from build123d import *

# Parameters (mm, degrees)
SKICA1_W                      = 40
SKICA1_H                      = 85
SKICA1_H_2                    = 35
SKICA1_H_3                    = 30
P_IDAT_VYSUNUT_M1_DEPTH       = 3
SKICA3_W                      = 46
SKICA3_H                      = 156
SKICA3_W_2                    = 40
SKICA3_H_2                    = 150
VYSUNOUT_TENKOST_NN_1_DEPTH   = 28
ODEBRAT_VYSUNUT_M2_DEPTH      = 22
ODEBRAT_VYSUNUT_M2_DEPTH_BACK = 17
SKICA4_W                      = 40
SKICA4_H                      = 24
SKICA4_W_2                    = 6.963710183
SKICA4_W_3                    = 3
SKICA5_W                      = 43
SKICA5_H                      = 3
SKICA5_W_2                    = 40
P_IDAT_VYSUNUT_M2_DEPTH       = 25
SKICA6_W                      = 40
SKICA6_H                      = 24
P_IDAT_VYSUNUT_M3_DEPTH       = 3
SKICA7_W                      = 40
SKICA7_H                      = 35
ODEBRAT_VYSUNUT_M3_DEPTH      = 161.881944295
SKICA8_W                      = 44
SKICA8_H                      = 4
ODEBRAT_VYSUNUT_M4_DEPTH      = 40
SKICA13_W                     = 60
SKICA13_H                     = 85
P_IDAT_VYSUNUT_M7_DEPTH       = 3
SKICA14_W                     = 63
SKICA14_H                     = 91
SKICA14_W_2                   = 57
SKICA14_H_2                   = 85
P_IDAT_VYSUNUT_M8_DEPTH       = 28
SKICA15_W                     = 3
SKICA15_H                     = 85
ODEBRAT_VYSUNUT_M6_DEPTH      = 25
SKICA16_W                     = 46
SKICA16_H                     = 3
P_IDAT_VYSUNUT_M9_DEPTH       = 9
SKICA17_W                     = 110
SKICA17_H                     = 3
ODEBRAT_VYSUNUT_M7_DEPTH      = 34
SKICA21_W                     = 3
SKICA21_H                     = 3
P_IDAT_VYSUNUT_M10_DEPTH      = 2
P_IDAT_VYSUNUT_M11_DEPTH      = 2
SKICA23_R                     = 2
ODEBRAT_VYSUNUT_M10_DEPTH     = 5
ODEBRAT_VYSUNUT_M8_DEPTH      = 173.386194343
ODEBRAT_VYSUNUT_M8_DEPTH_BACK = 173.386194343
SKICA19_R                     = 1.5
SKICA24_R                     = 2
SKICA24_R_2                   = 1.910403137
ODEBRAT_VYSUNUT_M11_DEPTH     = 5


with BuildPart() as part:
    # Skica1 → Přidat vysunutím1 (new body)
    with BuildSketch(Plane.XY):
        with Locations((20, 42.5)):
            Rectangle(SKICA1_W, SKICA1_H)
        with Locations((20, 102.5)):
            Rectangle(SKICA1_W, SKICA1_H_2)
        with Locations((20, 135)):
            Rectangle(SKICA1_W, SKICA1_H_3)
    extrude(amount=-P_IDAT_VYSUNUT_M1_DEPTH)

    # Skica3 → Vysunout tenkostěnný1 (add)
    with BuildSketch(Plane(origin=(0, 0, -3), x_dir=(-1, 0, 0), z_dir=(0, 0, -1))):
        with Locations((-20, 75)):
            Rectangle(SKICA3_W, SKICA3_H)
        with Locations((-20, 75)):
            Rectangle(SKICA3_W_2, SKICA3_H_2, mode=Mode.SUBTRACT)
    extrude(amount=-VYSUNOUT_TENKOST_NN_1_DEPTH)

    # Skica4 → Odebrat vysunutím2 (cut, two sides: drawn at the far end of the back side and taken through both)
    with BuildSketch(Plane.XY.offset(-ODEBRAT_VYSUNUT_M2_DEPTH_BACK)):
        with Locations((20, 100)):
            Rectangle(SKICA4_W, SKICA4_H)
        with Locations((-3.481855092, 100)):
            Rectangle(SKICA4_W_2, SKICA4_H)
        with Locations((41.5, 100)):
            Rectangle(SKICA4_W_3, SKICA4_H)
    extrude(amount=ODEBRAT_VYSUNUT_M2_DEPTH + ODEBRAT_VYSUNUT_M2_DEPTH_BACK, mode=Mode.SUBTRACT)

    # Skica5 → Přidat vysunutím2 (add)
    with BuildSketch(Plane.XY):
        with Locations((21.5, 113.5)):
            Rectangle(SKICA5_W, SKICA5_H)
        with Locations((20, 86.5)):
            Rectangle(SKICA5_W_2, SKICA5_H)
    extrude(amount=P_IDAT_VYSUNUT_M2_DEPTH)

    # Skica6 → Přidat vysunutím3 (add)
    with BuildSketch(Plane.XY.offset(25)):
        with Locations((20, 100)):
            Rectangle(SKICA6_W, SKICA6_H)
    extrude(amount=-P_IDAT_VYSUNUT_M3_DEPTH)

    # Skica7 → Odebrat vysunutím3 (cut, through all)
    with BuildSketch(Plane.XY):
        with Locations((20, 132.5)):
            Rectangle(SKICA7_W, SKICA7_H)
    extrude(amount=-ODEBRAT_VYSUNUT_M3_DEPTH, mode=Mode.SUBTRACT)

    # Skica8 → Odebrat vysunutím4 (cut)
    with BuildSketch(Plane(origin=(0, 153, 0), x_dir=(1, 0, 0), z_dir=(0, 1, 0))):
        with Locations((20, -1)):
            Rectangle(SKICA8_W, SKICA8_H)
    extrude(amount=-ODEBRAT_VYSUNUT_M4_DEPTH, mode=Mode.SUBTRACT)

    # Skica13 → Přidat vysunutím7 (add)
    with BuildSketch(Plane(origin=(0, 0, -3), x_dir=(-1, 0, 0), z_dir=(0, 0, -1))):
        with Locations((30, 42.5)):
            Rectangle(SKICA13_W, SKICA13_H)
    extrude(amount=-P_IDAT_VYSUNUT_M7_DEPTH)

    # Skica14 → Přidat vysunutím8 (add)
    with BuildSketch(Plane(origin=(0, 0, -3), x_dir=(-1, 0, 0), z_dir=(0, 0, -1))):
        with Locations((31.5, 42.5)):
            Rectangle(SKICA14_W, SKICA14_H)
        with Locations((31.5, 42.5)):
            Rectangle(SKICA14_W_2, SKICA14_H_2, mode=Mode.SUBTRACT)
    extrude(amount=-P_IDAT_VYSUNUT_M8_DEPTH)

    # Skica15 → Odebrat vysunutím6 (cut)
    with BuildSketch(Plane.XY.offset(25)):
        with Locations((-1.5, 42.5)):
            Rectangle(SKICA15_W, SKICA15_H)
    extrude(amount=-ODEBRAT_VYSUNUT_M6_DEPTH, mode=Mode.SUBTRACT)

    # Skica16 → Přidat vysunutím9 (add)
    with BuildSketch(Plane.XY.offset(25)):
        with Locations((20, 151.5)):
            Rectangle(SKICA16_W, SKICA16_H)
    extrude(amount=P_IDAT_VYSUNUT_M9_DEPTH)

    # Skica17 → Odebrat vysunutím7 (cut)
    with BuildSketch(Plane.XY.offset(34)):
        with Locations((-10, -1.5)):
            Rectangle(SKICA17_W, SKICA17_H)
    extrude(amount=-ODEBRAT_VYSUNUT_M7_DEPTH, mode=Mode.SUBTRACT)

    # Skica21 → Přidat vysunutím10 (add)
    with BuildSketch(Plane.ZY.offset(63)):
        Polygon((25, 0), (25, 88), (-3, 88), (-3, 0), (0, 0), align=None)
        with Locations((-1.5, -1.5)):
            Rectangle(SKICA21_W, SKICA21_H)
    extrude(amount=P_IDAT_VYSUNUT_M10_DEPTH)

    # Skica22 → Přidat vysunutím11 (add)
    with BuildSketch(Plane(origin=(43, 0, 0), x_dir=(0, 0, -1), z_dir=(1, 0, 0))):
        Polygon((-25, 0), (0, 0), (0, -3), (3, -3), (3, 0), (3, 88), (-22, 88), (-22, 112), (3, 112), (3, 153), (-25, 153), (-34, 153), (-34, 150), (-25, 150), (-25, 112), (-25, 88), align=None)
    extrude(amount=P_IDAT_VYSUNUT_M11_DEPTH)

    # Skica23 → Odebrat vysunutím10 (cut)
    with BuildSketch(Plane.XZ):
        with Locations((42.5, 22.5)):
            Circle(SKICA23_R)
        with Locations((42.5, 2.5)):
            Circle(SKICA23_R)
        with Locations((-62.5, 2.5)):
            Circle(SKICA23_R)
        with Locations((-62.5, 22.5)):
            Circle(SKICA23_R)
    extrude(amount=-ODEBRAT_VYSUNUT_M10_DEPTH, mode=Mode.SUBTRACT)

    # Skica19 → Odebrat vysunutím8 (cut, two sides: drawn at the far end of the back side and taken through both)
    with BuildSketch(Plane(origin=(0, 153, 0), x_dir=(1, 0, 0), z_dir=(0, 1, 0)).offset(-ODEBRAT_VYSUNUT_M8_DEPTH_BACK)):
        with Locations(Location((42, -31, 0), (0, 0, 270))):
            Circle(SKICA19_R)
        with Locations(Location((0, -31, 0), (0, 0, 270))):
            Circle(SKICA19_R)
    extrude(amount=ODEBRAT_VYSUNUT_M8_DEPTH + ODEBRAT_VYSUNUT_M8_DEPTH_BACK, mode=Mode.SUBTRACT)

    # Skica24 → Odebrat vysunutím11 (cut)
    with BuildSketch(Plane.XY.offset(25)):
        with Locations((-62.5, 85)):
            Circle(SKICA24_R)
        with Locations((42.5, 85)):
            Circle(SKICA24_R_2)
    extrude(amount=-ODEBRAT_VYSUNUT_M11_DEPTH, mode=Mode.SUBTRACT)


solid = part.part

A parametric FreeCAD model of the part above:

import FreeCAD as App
import Part
import Sketcher


def add_polygon(sketch, points):
    """Adds a closed chain of lines whose ends are joined by coincident constraints."""
    first, n = sketch.GeometryCount, len(points)
    for a, b in zip(points, points[1:] + points[:1]):
        sketch.addGeometry(Part.LineSegment(App.Vector(*a, 0), App.Vector(*b, 0)), False)
    for i in range(n):
        sketch.addConstraint(Sketcher.Constraint("Coincident", first + i, 2, first + (i + 1) % n, 1))

doc = App.newDocument("Part")
params = doc.addObject("Spreadsheet::Sheet", "Params")
for row, (alias, value) in enumerate([
    ("sketch1_width", "40 mm"),
    ("sketch1_height", "150 mm"),
    ("pad1_length", "3 mm"),
    ("sketch2_width", "46 mm"),
    ("sketch2_width2", "40 mm"),
    ("sketch2_height", "156 mm"),
    ("sketch2_height2", "150 mm"),
    ("pad2_length", "28 mm"),
    ("sketch3_height", "24 mm"),
    ("pocket1_length", "22 mm"),
    ("pocket1_length2", "17 mm"),
    ("sketch4_width", "43 mm"),
    ("sketch4_width2", "40 mm"),
    ("sketch4_height", "3 mm"),
    ("pad3_length", "25 mm"),
    ("sketch5_width", "40 mm"),
    ("sketch5_height", "24 mm"),
    ("pad4_length", "3 mm"),
    ("sketch6_width", "40 mm"),
    ("sketch6_height", "35 mm"),
    ("sketch7_width", "44 mm"),
    ("sketch7_height", "4 mm"),
    ("pocket3_length", "40 mm"),
    ("sketch8_width", "60 mm"),
    ("sketch8_height", "85 mm"),
    ("pad5_length", "3 mm"),
    ("sketch9_width", "63 mm"),
    ("sketch9_width2", "57 mm"),
    ("sketch9_height", "91 mm"),
    ("sketch9_height2", "85 mm"),
    ("pad6_length", "28 mm"),
    ("sketch10_width", "3 mm"),
    ("sketch10_height", "85 mm"),
    ("pocket4_length", "25 mm"),
    ("sketch11_width", "46 mm"),
    ("sketch11_height", "3 mm"),
    ("pad7_length", "9 mm"),
    ("sketch12_width", "110 mm"),
    ("sketch12_height", "3 mm"),
    ("pocket5_length", "34 mm"),
    ("sketch13_width", "88 mm"),
    ("sketch13_width2", "91 mm"),
    ("sketch13_height", "28 mm"),
    ("pad8_length", "2 mm"),
    ("sketch14_width", "3 mm"),
    ("sketch14_width2", "91 mm"),
    ("sketch14_width3", "24 mm"),
    ("sketch14_width4", "41 mm"),
    ("sketch14_height", "25 mm"),
    ("pad9_length", "2 mm"),
    ("sketch15_diameter", "4 mm"),
    ("pocket6_length", "5 mm"),
    ("sketch16_diameter", "3 mm"),
    ("sketch17_diameter", "4 mm"),
    ("pocket8_length", "5 mm"),
], start=1):
    params.set(f"A{row}", alias)
    params.set(f"B{row}", "=" + value)
    params.setAlias(f"B{row}", alias)

body = doc.addObject("PartDesign::Body", "Body")

sketch1 = body.newObject("Sketcher::SketchObject", "Sketch")
sketch1.AttachmentSupport = (doc.getObject("XY_Plane"), [""])
sketch1.MapMode = "FlatFace"
add_polygon(sketch1, [(0, 0), (40, 0), (40, 150), (0, 150)])
sketch1.addConstraint([
    Sketcher.Constraint("Horizontal", 0),
    Sketcher.Constraint("Vertical", 1),
    Sketcher.Constraint("Horizontal", 2),
    Sketcher.Constraint("Vertical", 3),
    Sketcher.Constraint("Coincident", 3, 2, -1, 1),
    Sketcher.Constraint("DistanceX", 0, 1, 0, 2, 40.0),
    Sketcher.Constraint("DistanceY", 1, 1, 1, 2, 150.0),
])
sketch1.setExpression("Constraints[9]", "Params.sketch1_width")
sketch1.setExpression("Constraints[10]", "Params.sketch1_height")
pad1 = body.newObject("PartDesign::Pad", "Pad")
pad1.Profile = sketch1
pad1.setExpression("Length", "Params.pad1_length")
pad1.Reversed = True

sketch2 = body.newObject("Sketcher::SketchObject", "Sketch001")
sketch2.AttachmentSupport = (doc.getObject("XY_Plane"), [""])
sketch2.MapMode = "FlatFace"
sketch2.AttachmentOffset = App.Placement(App.Vector(0, 0, -3), App.Rotation())
add_polygon(sketch2, [(43, 153), (43, -3), (-3, -3), (-3, 153)])
add_polygon(sketch2, [(0, 0), (40, 0), (40, 150), (0, 150)])
sketch2.addConstraint([
    Sketcher.Constraint("Vertical", 0),
    Sketcher.Constraint("Horizontal", 1),
    Sketcher.Constraint("Vertical", 2),
    Sketcher.Constraint("Horizontal", 3),
    Sketcher.Constraint("Horizontal", 4),
    Sketcher.Constraint("Vertical", 5),
    Sketcher.Constraint("Horizontal", 6),
    Sketcher.Constraint("Vertical", 7),
    Sketcher.Constraint("Coincident", 7, 2, -1, 1),
    Sketcher.Constraint("DistanceX", 1, 2, 1, 1, 46.0),
    Sketcher.Constraint("DistanceX", 4, 1, 4, 2, 40.0),
    Sketcher.Constraint("DistanceY", 0, 2, 0, 1, 156.0),
    Sketcher.Constraint("DistanceY", 5, 1, 5, 2, 150.0),
    Sketcher.Constraint("DistanceX", -1, 1, 0, 2, 43.0),
    Sketcher.Constraint("DistanceY", 0, 2, -1, 1, 3.0),
])
sketch2.setExpression("Constraints[17]", "Params.sketch2_width")
sketch2.setExpression("Constraints[18]", "Params.sketch2_width2")
sketch2.setExpression("Constraints[19]", "Params.sketch2_height")
sketch2.setExpression("Constraints[20]", "Params.sketch2_height2")
pad2 = body.newObject("PartDesign::Pad", "Pad001")
pad2.Profile = sketch2
pad2.setExpression("Length", "Params.pad2_length")

sketch3 = body.newObject("Sketcher::SketchObject", "Sketch002")
sketch3.AttachmentSupport = (doc.getObject("XY_Plane"), [""])
sketch3.MapMode = "FlatFace"
add_polygon(sketch3, [(-6.96371, 112), (-6.96371, 88), (43, 88), (43, 112)])
sketch3.addConstraint([
    Sketcher.Constraint("Vertical", 0),
    Sketcher.Constraint("Horizontal", 1),
    Sketcher.Constraint("Vertical", 2),
    Sketcher.Constraint("Horizontal", 3),
    Sketcher.Constraint("DistanceY", 0, 2, 0, 1, 24.0),
    Sketcher.Constraint("DistanceY", -1, 1, 0, 2, 88.0),
    Sketcher.Constraint("DistanceX", -1, 1, 1, 2, 43.0),
    Sketcher.Constraint("DistanceX", 1, 1, 1, 2, 49.96371),
])
sketch3.setExpression("Constraints[8]", "Params.sketch3_height")
pocket1 = body.newObject("PartDesign::Pocket", "Pocket")
pocket1.Profile = sketch3
pocket1.Type = "TwoLengths"
pocket1.setExpression("Length", "Params.pocket1_length")
pocket1.setExpression("Length2", "Params.pocket1_length2")
pocket1.Reversed = True

sketch4 = body.newObject("Sketcher::SketchObject", "Sketch003")
sketch4.AttachmentSupport = (doc.getObject("XY_Plane"), [""])
sketch4.MapMode = "FlatFace"
add_polygon(sketch4, [(0, 115), (0, 112), (43, 112), (43, 115)])
add_polygon(sketch4, [(0, 88), (0, 85), (40, 85), (40, 88)])
sketch4.addConstraint([
    Sketcher.Constraint("Vertical", 0),
    Sketcher.Constraint("Horizontal", 1),
    Sketcher.Constraint("Vertical", 2),
    Sketcher.Constraint("Horizontal", 3),
    Sketcher.Constraint("Vertical", 4),
    Sketcher.Constraint("Horizontal", 5),
    Sketcher.Constraint("Vertical", 6),
    Sketcher.Constraint("Horizontal", 7),
    Sketcher.Constraint("PointOnObject", 0, 2, -2),
    Sketcher.Constraint("PointOnObject", 4, 2, -2),
    Sketcher.Constraint("Equal", 2, 4),
    Sketcher.Constraint("DistanceX", 1, 1, 1, 2, 43.0),
    Sketcher.Constraint("DistanceX", 5, 1, 5, 2, 40.0),
    Sketcher.Constraint("DistanceY", 0, 2, 0, 1, 3.0),
    Sketcher.Constraint("DistanceY", -1, 1, 0, 2, 112.0),
    Sketcher.Constraint("DistanceY", -1, 1, 4, 2, 85.0),
])
sketch4.setExpression("Constraints[19]", "Params.sketch4_width")
sketch4.setExpression("Constraints[20]", "Params.sketch4_width2")
sketch4.setExpression("Constraints[21]", "Params.sketch4_height")
pad3 = body.newObject("PartDesign::Pad", "Pad002")
pad3.Profile = sketch4
pad3.setExpression("Length", "Params.pad3_length")

sketch5 = body.newObject("Sketcher::SketchObject", "Sketch004")
sketch5.AttachmentSupport = (doc.getObject("XY_Plane"), [""])
sketch5.MapMode = "FlatFace"
sketch5.AttachmentOffset = App.Placement(App.Vector(0, 0, 25), App.Rotation())
add_polygon(sketch5, [(0, 112), (0, 88), (40, 88), (40, 112)])
sketch5.addConstraint([
    Sketcher.Constraint("Vertical", 0),
    Sketcher.Constraint("Horizontal", 1),
    Sketcher.Constraint("Vertical", 2),
    Sketcher.Constraint("Horizontal", 3),
    Sketcher.Constraint("PointOnObject", 0, 2, -2),
    Sketcher.Constraint("DistanceX", 1, 1, 1, 2, 40.0),
    Sketcher.Constraint("DistanceY", 0, 2, 0, 1, 24.0),
    Sketcher.Constraint("DistanceY", -1, 1, 0, 2, 88.0),
])
sketch5.setExpression("Constraints[9]", "Params.sketch5_width")
sketch5.setExpression("Constraints[10]", "Params.sketch5_height")
pad4 = body.newObject("PartDesign::Pad", "Pad003")
pad4.Profile = sketch5
pad4.setExpression("Length", "Params.pad4_length")
pad4.Reversed = True

sketch6 = body.newObject("Sketcher::SketchObject", "Sketch005")
sketch6.AttachmentSupport = (doc.getObject("XY_Plane"), [""])
sketch6.MapMode = "FlatFace"
add_polygon(sketch6, [(0, 150), (0, 115), (40, 115), (40, 150)])
sketch6.addConstraint([
    Sketcher.Constraint("Vertical", 0),
    Sketcher.Constraint("Horizontal", 1),
    Sketcher.Constraint("Vertical", 2),
    Sketcher.Constraint("Horizontal", 3),
    Sketcher.Constraint("PointOnObject", 0, 2, -2),
    Sketcher.Constraint("DistanceX", 1, 1, 1, 2, 40.0),
    Sketcher.Constraint("DistanceY", 0, 2, 0, 1, 35.0),
    Sketcher.Constraint("DistanceY", -1, 1, 0, 2, 115.0),
])
sketch6.setExpression("Constraints[9]", "Params.sketch6_width")
sketch6.setExpression("Constraints[10]", "Params.sketch6_height")
pocket2 = body.newObject("PartDesign::Pocket", "Pocket001")
pocket2.Profile = sketch6
pocket2.Type = "ThroughAll"

sketch7 = body.newObject("Sketcher::SketchObject", "Sketch006")
sketch7.AttachmentSupport = (doc.getObject("XZ_Plane"), [""])
sketch7.MapMode = "FlatFace"
sketch7.AttachmentOffset = App.Placement(App.Vector(0, 0, -153), App.Rotation())
add_polygon(sketch7, [(-2, -1), (-2, 3), (42, 3), (42, -1)])
sketch7.addConstraint([
    Sketcher.Constraint("Vertical", 0),
    Sketcher.Constraint("Horizontal", 1),
    Sketcher.Constraint("Vertical", 2),
    Sketcher.Constraint("Horizontal", 3),
    Sketcher.Constraint("DistanceX", 1, 1, 1, 2, 44.0),
    Sketcher.Constraint("DistanceY", 0, 1, 0, 2, 4.0),
    Sketcher.Constraint("DistanceX", 0, 2, -1, 1, 2.0),
    Sketcher.Constraint("DistanceY", -1, 1, 0, 2, 3.0),
])
sketch7.setExpression("Constraints[8]", "Params.sketch7_width")
sketch7.setExpression("Constraints[9]", "Params.sketch7_height")
pocket3 = body.newObject("PartDesign::Pocket", "Pocket002")
pocket3.Profile = sketch7
pocket3.setExpression("Length", "Params.pocket3_length")
pocket3.Reversed = True

sketch8 = body.newObject("Sketcher::SketchObject", "Sketch007")
sketch8.AttachmentSupport = (doc.getObject("XY_Plane"), [""])
sketch8.MapMode = "FlatFace"
sketch8.AttachmentOffset = App.Placement(App.Vector(0, 0, -3), App.Rotation())
add_polygon(sketch8, [(0, 85), (0, 0), (-60, 0), (-60, 85)])
sketch8.addConstraint([
    Sketcher.Constraint("Vertical", 0),
    Sketcher.Constraint("Horizontal", 1),
    Sketcher.Constraint("Vertical", 2),
    Sketcher.Constraint("Horizontal", 3),
    Sketcher.Constraint("Coincident", 0, 2, -1, 1),
    Sketcher.Constraint("DistanceX", 1, 2, 1, 1, 60.0),
    Sketcher.Constraint("DistanceY", 0, 2, 0, 1, 85.0),
])
sketch8.setExpression("Constraints[9]", "Params.sketch8_width")
sketch8.setExpression("Constraints[10]", "Params.sketch8_height")
pad5 = body.newObject("PartDesign::Pad", "Pad004")
pad5.Profile = sketch8
pad5.setExpression("Length", "Params.pad5_length")

sketch9 = body.newObject("Sketcher::SketchObject", "Sketch008")
sketch9.AttachmentSupport = (doc.getObject("XY_Plane"), [""])
sketch9.MapMode = "FlatFace"
sketch9.AttachmentOffset = App.Placement(App.Vector(0, 0, -3), App.Rotation())
add_polygon(sketch9, [(0, 88), (0, -3), (-63, -3), (-63, 88)])
add_polygon(sketch9, [(-60, 0), (-3, 0), (-3, 85), (-60, 85)])
sketch9.addConstraint([
    Sketcher.Constraint("Vertical", 0),
    Sketcher.Constraint("Horizontal", 1),
    Sketcher.Constraint("Vertical", 2),
    Sketcher.Constraint("Horizontal", 3),
    Sketcher.Constraint("Horizontal", 4),
    Sketcher.Constraint("Vertical", 5),
    Sketcher.Constraint("Horizontal", 6),
    Sketcher.Constraint("Vertical", 7),
    Sketcher.Constraint("PointOnObject", 0, 2, -2),
    Sketcher.Constraint("PointOnObject", 4, 2, -1),
    Sketcher.Constraint("DistanceX", 1, 2, 1, 1, 63.0),
    Sketcher.Constraint("DistanceX", 4, 1, 4, 2, 57.0),
    Sketcher.Constraint("DistanceY", 0, 2, 0, 1, 91.0),
    Sketcher.Constraint("DistanceY", 5, 1, 5, 2, 85.0),
    Sketcher.Constraint("DistanceY", 0, 2, -1, 1, 3.0),
    Sketcher.Constraint("DistanceX", 4, 2, -1, 1, 3.0),
])
sketch9.setExpression("Constraints[18]", "Params.sketch9_width")
sketch9.setExpression("Constraints[19]", "Params.sketch9_width2")
sketch9.setExpression("Constraints[20]", "Params.sketch9_height")
sketch9.setExpression("Constraints[21]", "Params.sketch9_height2")
pad6 = body.newObject("PartDesign::Pad", "Pad005")
pad6.Profile = sketch9
pad6.setExpression("Length", "Params.pad6_length")

sketch10 = body.newObject("Sketcher::SketchObject", "Sketch009")
sketch10.AttachmentSupport = (doc.getObject("XY_Plane"), [""])
sketch10.MapMode = "FlatFace"
sketch10.AttachmentOffset = App.Placement(App.Vector(0, 0, 25), App.Rotation())
add_polygon(sketch10, [(-3, 85), (-3, 0), (0, 0), (0, 85)])
sketch10.addConstraint([
    Sketcher.Constraint("Vertical", 0),
    Sketcher.Constraint("Horizontal", 1),
    Sketcher.Constraint("Vertical", 2),
    Sketcher.Constraint("Horizontal", 3),
    Sketcher.Constraint("Coincident", 1, 2, -1, 1),
    Sketcher.Constraint("DistanceX", 1, 1, 1, 2, 3.0),
    Sketcher.Constraint("DistanceY", 0, 2, 0, 1, 85.0),
])
sketch10.setExpression("Constraints[9]", "Params.sketch10_width")
sketch10.setExpression("Constraints[10]", "Params.sketch10_height")
pocket4 = body.newObject("PartDesign::Pocket", "Pocket003")
pocket4.Profile = sketch10
pocket4.setExpression("Length", "Params.pocket4_length")

sketch11 = body.newObject("Sketcher::SketchObject", "Sketch010")
sketch11.AttachmentSupport = (doc.getObject("XY_Plane"), [""])
sketch11.MapMode = "FlatFace"
sketch11.AttachmentOffset = App.Placement(App.Vector(0, 0, 25), App.Rotation())
add_polygon(sketch11, [(-3, 153), (-3, 150), (43, 150), (43, 153)])
sketch11.addConstraint([
    Sketcher.Constraint("Vertical", 0),
    Sketcher.Constraint("Horizontal", 1),
    Sketcher.Constraint("Vertical", 2),
    Sketcher.Constraint("Horizontal", 3),
    Sketcher.Constraint("DistanceX", 1, 1, 1, 2, 46.0),
    Sketcher.Constraint("DistanceY", 0, 2, 0, 1, 3.0),
    Sketcher.Constraint("DistanceX", 0, 2, -1, 1, 3.0),
    Sketcher.Constraint("DistanceY", -1, 1, 0, 2, 150.0),
])
sketch11.setExpression("Constraints[8]", "Params.sketch11_width")
sketch11.setExpression("Constraints[9]", "Params.sketch11_height")
pad7 = body.newObject("PartDesign::Pad", "Pad006")
pad7.Profile = sketch11
pad7.setExpression("Length", "Params.pad7_length")

sketch12 = body.newObject("Sketcher::SketchObject", "Sketch011")
sketch12.AttachmentSupport = (doc.getObject("XY_Plane"), [""])
sketch12.MapMode = "FlatFace"
sketch12.AttachmentOffset = App.Placement(App.Vector(0, 0, 34), App.Rotation())
add_polygon(sketch12, [(-65, 0), (-65, -3), (45, -3), (45, 0)])
sketch12.addConstraint([
    Sketcher.Constraint("Vertical", 0),
    Sketcher.Constraint("Horizontal", 1),
    Sketcher.Constraint("Vertical", 2),
    Sketcher.Constraint("Horizontal", 3),
    Sketcher.Constraint("PointOnObject", 2, 2, -1),
    Sketcher.Constraint("DistanceX", 1, 1, 1, 2, 110.0),
    Sketcher.Constraint("DistanceY", 0, 2, 0, 1, 3.0),
    Sketcher.Constraint("DistanceX", 0, 2, -1, 1, 65.0),
])
sketch12.setExpression("Constraints[9]", "Params.sketch12_width")
sketch12.setExpression("Constraints[10]", "Params.sketch12_height")
pocket5 = body.newObject("PartDesign::Pocket", "Pocket004")
pocket5.Profile = sketch12
pocket5.setExpression("Length", "Params.pocket5_length")

sketch13 = body.newObject("Sketcher::SketchObject", "Sketch012")
sketch13.AttachmentSupport = (doc.getObject("YZ_Plane"), [""])
sketch13.MapMode = "FlatFace"
sketch13.AttachmentOffset = App.Placement(App.Vector(0, 0, -63), App.Rotation())
add_polygon(sketch13, [(0, 25), (88, 25), (88, -3), (-3, -3), (-3, 0), (0, 0)])
sketch13.addConstraint([
    Sketcher.Constraint("Horizontal", 0),
    Sketcher.Constraint("Vertical", 1),
    Sketcher.Constraint("Horizontal", 2),
    Sketcher.Constraint("Vertical", 3),
    Sketcher.Constraint("Horizontal", 4),
    Sketcher.Constraint("Vertical", 5),
    Sketcher.Constraint("Coincident", 4, 2, -1, 1),
    Sketcher.Constraint("Equal", 4, 3),
    Sketcher.Constraint("DistanceX", 0, 1, 0, 2, 88.0),
    Sketcher.Constraint("DistanceX", 2, 2, 2, 1, 91.0),
    Sketcher.Constraint("DistanceY", 1, 2, 1, 1, 28.0),
])
sketch13.setExpression("Constraints[14]", "Params.sketch13_width")
sketch13.setExpression("Constraints[15]", "Params.sketch13_width2")
sketch13.setExpression("Constraints[16]", "Params.sketch13_height")
pad8 = body.newObject("PartDesign::Pad", "Pad007")
pad8.Profile = sketch13
pad8.setExpression("Length", "Params.pad8_length")
pad8.Reversed = True

sketch14 = body.newObject("Sketcher::SketchObject", "Sketch013")
sketch14.AttachmentSupport = (doc.getObject("YZ_Plane"), [""])
sketch14.MapMode = "FlatFace"
sketch14.AttachmentOffset = App.Placement(App.Vector(0, 0, 43), App.Rotation())
add_polygon(sketch14, [(0, 25), (0, 0), (-3, 0), (-3, -3), (88, -3), (88, 22), (112, 22), (112, -3), (153, -3), (153, 34), (150, 34), (150, 25)])
sketch14.addConstraint([
    Sketcher.Constraint("Vertical", 0),
    Sketcher.Constraint("Horizontal", 1),
    Sketcher.Constraint("Vertical", 2),
    Sketcher.Constraint("Horizontal", 3),
    Sketcher.Constraint("Vertical", 4),
    Sketcher.Constraint("Horizontal", 5),
    Sketcher.Constraint("Vertical", 6),
    Sketcher.Constraint("Horizontal", 7),
    Sketcher.Constraint("Vertical", 8),
    Sketcher.Constraint("Horizontal", 9),
    Sketcher.Constraint("Vertical", 10),
    Sketcher.Constraint("Horizontal", 11),
    Sketcher.Constraint("Coincident", 0, 2, -1, 1),
    Sketcher.Constraint("Horizontal", 3, 2, 6, 2),
    Sketcher.Constraint("Equal", 1, 9),
    Sketcher.Constraint("Equal", 9, 2),
    Sketcher.Constraint("Equal", 0, 4),
    Sketcher.Constraint("DistanceX", 1, 2, 1, 1, 3.0),
    Sketcher.Constraint("DistanceX", 3, 1, 3, 2, 91.0),
    Sketcher.Constraint("DistanceX", 5, 1, 5, 2, 24.0),
    Sketcher.Constraint("DistanceX", 7, 1, 7, 2, 41.0),
    Sketcher.Constraint("DistanceY", 0, 2, 0, 1, 25.0),
    Sketcher.Constraint("DistanceY", 8, 1, 8, 2, 37.0),
])
sketch14.setExpression("Constraints[29]", "Params.sketch14_width")
sketch14.setExpression("Constraints[30]", "Params.sketch14_width2")
sketch14.setExpression("Constraints[31]", "Params.sketch14_width3")
sketch14.setExpression("Constraints[32]", "Params.sketch14_width4")
sketch14.setExpression("Constraints[33]", "Params.sketch14_height")
pad9 = body.newObject("PartDesign::Pad", "Pad008")
pad9.Profile = sketch14
pad9.setExpression("Length", "Params.pad9_length")

sketch15 = body.newObject("Sketcher::SketchObject", "Sketch014")
sketch15.AttachmentSupport = (doc.getObject("XZ_Plane"), [""])
sketch15.MapMode = "FlatFace"
sketch15.addGeometry([
    Part.Circle(App.Vector(42.5, 22.5, 0), App.Vector(0, 0, 1), 2),
    Part.Circle(App.Vector(42.5, 2.5, 0), App.Vector(0, 0, 1), 2),
    Part.Circle(App.Vector(-62.5, 2.5, 0), App.Vector(0, 0, 1), 2),
    Part.Circle(App.Vector(-62.5, 22.5, 0), App.Vector(0, 0, 1), 2),
], False)
sketch15.addConstraint([
    Sketcher.Constraint("Equal", 0, 1),
    Sketcher.Constraint("Equal", 1, 2),
    Sketcher.Constraint("Equal", 2, 3),
    Sketcher.Constraint("Horizontal", 1, 3, 2, 3),
    Sketcher.Constraint("Horizontal", 0, 3, 3, 3),
    Sketcher.Constraint("Vertical", 0, 3, 1, 3),
    Sketcher.Constraint("Vertical", 2, 3, 3, 3),
    Sketcher.Constraint("Diameter", 0, 4.0),
    Sketcher.Constraint("DistanceY", 1, 3, 0, 3, 20.0),
    Sketcher.Constraint("DistanceX", 2, 3, 1, 3, 105.0),
    Sketcher.Constraint("DistanceX", -1, 1, 0, 3, 42.5),
    Sketcher.Constraint("DistanceY", -1, 1, 0, 3, 22.5),
])
sketch15.setExpression("Constraints[7]", "Params.sketch15_diameter")
pocket6 = body.newObject("PartDesign::Pocket", "Pocket005")
pocket6.Profile = sketch15
pocket6.setExpression("Length", "Params.pocket6_length")

sketch16 = body.newObject("Sketcher::SketchObject", "Sketch015")
sketch16.AttachmentSupport = (doc.getObject("XZ_Plane"), [""])
sketch16.MapMode = "FlatFace"
sketch16.AttachmentOffset = App.Placement(App.Vector(0, 0, -153), App.Rotation())
sketch16.addGeometry([
    Part.Circle(App.Vector(42, 31, 0), App.Vector(0, 0, 1), 1.5),
    Part.Circle(App.Vector(0, 31, 0), App.Vector(0, 0, 1), 1.5),
], False)
sketch16.addConstraint([
    Sketcher.Constraint("Equal", 0, 1),
    Sketcher.Constraint("PointOnObject", 1, 3, -2),
    Sketcher.Constraint("Horizontal", 0, 3, 1, 3),
    Sketcher.Constraint("Diameter", 0, 3.0),
    Sketcher.Constraint("DistanceX", -1, 1, 0, 3, 42.0),
    Sketcher.Constraint("DistanceY", -1, 1, 0, 3, 31.0),
])
sketch16.setExpression("Constraints[3]", "Params.sketch16_diameter")
pocket7 = body.newObject("PartDesign::Pocket", "Pocket006")
pocket7.Profile = sketch16
pocket7.Type = "ThroughAll"
pocket7.Midplane = True

sketch17 = body.newObject("Sketcher::SketchObject", "Sketch016")
sketch17.AttachmentSupport = (doc.getObject("XY_Plane"), [""])
sketch17.MapMode = "FlatFace"
sketch17.AttachmentOffset = App.Placement(App.Vector(0, 0, 25), App.Rotation())
sketch17.addGeometry([
    Part.Circle(App.Vector(-62.5, 85, 0), App.Vector(0, 0, 1), 2),
    Part.Circle(App.Vector(42.5, 85, 0), App.Vector(0, 0, 1), 1.910403),
], False)
sketch17.addConstraint([
    Sketcher.Constraint("Horizontal", 0, 3, 1, 3),
    Sketcher.Constraint("Diameter", 0, 4.0),
    Sketcher.Constraint("DistanceY", -1, 1, 0, 3, 85.0),
    Sketcher.Constraint("DistanceX", 0, 3, 1, 3, 105.0),
    Sketcher.Constraint("DistanceX", 0, 3, -1, 1, 62.5),
    Sketcher.Constraint("Diameter", 1, 3.820806),
])
sketch17.setExpression("Constraints[1]", "Params.sketch17_diameter")
pocket8 = body.newObject("PartDesign::Pocket", "Pocket007")
pocket8.Profile = sketch17
pocket8.setExpression("Length", "Params.pocket8_length")

doc.recompute()
